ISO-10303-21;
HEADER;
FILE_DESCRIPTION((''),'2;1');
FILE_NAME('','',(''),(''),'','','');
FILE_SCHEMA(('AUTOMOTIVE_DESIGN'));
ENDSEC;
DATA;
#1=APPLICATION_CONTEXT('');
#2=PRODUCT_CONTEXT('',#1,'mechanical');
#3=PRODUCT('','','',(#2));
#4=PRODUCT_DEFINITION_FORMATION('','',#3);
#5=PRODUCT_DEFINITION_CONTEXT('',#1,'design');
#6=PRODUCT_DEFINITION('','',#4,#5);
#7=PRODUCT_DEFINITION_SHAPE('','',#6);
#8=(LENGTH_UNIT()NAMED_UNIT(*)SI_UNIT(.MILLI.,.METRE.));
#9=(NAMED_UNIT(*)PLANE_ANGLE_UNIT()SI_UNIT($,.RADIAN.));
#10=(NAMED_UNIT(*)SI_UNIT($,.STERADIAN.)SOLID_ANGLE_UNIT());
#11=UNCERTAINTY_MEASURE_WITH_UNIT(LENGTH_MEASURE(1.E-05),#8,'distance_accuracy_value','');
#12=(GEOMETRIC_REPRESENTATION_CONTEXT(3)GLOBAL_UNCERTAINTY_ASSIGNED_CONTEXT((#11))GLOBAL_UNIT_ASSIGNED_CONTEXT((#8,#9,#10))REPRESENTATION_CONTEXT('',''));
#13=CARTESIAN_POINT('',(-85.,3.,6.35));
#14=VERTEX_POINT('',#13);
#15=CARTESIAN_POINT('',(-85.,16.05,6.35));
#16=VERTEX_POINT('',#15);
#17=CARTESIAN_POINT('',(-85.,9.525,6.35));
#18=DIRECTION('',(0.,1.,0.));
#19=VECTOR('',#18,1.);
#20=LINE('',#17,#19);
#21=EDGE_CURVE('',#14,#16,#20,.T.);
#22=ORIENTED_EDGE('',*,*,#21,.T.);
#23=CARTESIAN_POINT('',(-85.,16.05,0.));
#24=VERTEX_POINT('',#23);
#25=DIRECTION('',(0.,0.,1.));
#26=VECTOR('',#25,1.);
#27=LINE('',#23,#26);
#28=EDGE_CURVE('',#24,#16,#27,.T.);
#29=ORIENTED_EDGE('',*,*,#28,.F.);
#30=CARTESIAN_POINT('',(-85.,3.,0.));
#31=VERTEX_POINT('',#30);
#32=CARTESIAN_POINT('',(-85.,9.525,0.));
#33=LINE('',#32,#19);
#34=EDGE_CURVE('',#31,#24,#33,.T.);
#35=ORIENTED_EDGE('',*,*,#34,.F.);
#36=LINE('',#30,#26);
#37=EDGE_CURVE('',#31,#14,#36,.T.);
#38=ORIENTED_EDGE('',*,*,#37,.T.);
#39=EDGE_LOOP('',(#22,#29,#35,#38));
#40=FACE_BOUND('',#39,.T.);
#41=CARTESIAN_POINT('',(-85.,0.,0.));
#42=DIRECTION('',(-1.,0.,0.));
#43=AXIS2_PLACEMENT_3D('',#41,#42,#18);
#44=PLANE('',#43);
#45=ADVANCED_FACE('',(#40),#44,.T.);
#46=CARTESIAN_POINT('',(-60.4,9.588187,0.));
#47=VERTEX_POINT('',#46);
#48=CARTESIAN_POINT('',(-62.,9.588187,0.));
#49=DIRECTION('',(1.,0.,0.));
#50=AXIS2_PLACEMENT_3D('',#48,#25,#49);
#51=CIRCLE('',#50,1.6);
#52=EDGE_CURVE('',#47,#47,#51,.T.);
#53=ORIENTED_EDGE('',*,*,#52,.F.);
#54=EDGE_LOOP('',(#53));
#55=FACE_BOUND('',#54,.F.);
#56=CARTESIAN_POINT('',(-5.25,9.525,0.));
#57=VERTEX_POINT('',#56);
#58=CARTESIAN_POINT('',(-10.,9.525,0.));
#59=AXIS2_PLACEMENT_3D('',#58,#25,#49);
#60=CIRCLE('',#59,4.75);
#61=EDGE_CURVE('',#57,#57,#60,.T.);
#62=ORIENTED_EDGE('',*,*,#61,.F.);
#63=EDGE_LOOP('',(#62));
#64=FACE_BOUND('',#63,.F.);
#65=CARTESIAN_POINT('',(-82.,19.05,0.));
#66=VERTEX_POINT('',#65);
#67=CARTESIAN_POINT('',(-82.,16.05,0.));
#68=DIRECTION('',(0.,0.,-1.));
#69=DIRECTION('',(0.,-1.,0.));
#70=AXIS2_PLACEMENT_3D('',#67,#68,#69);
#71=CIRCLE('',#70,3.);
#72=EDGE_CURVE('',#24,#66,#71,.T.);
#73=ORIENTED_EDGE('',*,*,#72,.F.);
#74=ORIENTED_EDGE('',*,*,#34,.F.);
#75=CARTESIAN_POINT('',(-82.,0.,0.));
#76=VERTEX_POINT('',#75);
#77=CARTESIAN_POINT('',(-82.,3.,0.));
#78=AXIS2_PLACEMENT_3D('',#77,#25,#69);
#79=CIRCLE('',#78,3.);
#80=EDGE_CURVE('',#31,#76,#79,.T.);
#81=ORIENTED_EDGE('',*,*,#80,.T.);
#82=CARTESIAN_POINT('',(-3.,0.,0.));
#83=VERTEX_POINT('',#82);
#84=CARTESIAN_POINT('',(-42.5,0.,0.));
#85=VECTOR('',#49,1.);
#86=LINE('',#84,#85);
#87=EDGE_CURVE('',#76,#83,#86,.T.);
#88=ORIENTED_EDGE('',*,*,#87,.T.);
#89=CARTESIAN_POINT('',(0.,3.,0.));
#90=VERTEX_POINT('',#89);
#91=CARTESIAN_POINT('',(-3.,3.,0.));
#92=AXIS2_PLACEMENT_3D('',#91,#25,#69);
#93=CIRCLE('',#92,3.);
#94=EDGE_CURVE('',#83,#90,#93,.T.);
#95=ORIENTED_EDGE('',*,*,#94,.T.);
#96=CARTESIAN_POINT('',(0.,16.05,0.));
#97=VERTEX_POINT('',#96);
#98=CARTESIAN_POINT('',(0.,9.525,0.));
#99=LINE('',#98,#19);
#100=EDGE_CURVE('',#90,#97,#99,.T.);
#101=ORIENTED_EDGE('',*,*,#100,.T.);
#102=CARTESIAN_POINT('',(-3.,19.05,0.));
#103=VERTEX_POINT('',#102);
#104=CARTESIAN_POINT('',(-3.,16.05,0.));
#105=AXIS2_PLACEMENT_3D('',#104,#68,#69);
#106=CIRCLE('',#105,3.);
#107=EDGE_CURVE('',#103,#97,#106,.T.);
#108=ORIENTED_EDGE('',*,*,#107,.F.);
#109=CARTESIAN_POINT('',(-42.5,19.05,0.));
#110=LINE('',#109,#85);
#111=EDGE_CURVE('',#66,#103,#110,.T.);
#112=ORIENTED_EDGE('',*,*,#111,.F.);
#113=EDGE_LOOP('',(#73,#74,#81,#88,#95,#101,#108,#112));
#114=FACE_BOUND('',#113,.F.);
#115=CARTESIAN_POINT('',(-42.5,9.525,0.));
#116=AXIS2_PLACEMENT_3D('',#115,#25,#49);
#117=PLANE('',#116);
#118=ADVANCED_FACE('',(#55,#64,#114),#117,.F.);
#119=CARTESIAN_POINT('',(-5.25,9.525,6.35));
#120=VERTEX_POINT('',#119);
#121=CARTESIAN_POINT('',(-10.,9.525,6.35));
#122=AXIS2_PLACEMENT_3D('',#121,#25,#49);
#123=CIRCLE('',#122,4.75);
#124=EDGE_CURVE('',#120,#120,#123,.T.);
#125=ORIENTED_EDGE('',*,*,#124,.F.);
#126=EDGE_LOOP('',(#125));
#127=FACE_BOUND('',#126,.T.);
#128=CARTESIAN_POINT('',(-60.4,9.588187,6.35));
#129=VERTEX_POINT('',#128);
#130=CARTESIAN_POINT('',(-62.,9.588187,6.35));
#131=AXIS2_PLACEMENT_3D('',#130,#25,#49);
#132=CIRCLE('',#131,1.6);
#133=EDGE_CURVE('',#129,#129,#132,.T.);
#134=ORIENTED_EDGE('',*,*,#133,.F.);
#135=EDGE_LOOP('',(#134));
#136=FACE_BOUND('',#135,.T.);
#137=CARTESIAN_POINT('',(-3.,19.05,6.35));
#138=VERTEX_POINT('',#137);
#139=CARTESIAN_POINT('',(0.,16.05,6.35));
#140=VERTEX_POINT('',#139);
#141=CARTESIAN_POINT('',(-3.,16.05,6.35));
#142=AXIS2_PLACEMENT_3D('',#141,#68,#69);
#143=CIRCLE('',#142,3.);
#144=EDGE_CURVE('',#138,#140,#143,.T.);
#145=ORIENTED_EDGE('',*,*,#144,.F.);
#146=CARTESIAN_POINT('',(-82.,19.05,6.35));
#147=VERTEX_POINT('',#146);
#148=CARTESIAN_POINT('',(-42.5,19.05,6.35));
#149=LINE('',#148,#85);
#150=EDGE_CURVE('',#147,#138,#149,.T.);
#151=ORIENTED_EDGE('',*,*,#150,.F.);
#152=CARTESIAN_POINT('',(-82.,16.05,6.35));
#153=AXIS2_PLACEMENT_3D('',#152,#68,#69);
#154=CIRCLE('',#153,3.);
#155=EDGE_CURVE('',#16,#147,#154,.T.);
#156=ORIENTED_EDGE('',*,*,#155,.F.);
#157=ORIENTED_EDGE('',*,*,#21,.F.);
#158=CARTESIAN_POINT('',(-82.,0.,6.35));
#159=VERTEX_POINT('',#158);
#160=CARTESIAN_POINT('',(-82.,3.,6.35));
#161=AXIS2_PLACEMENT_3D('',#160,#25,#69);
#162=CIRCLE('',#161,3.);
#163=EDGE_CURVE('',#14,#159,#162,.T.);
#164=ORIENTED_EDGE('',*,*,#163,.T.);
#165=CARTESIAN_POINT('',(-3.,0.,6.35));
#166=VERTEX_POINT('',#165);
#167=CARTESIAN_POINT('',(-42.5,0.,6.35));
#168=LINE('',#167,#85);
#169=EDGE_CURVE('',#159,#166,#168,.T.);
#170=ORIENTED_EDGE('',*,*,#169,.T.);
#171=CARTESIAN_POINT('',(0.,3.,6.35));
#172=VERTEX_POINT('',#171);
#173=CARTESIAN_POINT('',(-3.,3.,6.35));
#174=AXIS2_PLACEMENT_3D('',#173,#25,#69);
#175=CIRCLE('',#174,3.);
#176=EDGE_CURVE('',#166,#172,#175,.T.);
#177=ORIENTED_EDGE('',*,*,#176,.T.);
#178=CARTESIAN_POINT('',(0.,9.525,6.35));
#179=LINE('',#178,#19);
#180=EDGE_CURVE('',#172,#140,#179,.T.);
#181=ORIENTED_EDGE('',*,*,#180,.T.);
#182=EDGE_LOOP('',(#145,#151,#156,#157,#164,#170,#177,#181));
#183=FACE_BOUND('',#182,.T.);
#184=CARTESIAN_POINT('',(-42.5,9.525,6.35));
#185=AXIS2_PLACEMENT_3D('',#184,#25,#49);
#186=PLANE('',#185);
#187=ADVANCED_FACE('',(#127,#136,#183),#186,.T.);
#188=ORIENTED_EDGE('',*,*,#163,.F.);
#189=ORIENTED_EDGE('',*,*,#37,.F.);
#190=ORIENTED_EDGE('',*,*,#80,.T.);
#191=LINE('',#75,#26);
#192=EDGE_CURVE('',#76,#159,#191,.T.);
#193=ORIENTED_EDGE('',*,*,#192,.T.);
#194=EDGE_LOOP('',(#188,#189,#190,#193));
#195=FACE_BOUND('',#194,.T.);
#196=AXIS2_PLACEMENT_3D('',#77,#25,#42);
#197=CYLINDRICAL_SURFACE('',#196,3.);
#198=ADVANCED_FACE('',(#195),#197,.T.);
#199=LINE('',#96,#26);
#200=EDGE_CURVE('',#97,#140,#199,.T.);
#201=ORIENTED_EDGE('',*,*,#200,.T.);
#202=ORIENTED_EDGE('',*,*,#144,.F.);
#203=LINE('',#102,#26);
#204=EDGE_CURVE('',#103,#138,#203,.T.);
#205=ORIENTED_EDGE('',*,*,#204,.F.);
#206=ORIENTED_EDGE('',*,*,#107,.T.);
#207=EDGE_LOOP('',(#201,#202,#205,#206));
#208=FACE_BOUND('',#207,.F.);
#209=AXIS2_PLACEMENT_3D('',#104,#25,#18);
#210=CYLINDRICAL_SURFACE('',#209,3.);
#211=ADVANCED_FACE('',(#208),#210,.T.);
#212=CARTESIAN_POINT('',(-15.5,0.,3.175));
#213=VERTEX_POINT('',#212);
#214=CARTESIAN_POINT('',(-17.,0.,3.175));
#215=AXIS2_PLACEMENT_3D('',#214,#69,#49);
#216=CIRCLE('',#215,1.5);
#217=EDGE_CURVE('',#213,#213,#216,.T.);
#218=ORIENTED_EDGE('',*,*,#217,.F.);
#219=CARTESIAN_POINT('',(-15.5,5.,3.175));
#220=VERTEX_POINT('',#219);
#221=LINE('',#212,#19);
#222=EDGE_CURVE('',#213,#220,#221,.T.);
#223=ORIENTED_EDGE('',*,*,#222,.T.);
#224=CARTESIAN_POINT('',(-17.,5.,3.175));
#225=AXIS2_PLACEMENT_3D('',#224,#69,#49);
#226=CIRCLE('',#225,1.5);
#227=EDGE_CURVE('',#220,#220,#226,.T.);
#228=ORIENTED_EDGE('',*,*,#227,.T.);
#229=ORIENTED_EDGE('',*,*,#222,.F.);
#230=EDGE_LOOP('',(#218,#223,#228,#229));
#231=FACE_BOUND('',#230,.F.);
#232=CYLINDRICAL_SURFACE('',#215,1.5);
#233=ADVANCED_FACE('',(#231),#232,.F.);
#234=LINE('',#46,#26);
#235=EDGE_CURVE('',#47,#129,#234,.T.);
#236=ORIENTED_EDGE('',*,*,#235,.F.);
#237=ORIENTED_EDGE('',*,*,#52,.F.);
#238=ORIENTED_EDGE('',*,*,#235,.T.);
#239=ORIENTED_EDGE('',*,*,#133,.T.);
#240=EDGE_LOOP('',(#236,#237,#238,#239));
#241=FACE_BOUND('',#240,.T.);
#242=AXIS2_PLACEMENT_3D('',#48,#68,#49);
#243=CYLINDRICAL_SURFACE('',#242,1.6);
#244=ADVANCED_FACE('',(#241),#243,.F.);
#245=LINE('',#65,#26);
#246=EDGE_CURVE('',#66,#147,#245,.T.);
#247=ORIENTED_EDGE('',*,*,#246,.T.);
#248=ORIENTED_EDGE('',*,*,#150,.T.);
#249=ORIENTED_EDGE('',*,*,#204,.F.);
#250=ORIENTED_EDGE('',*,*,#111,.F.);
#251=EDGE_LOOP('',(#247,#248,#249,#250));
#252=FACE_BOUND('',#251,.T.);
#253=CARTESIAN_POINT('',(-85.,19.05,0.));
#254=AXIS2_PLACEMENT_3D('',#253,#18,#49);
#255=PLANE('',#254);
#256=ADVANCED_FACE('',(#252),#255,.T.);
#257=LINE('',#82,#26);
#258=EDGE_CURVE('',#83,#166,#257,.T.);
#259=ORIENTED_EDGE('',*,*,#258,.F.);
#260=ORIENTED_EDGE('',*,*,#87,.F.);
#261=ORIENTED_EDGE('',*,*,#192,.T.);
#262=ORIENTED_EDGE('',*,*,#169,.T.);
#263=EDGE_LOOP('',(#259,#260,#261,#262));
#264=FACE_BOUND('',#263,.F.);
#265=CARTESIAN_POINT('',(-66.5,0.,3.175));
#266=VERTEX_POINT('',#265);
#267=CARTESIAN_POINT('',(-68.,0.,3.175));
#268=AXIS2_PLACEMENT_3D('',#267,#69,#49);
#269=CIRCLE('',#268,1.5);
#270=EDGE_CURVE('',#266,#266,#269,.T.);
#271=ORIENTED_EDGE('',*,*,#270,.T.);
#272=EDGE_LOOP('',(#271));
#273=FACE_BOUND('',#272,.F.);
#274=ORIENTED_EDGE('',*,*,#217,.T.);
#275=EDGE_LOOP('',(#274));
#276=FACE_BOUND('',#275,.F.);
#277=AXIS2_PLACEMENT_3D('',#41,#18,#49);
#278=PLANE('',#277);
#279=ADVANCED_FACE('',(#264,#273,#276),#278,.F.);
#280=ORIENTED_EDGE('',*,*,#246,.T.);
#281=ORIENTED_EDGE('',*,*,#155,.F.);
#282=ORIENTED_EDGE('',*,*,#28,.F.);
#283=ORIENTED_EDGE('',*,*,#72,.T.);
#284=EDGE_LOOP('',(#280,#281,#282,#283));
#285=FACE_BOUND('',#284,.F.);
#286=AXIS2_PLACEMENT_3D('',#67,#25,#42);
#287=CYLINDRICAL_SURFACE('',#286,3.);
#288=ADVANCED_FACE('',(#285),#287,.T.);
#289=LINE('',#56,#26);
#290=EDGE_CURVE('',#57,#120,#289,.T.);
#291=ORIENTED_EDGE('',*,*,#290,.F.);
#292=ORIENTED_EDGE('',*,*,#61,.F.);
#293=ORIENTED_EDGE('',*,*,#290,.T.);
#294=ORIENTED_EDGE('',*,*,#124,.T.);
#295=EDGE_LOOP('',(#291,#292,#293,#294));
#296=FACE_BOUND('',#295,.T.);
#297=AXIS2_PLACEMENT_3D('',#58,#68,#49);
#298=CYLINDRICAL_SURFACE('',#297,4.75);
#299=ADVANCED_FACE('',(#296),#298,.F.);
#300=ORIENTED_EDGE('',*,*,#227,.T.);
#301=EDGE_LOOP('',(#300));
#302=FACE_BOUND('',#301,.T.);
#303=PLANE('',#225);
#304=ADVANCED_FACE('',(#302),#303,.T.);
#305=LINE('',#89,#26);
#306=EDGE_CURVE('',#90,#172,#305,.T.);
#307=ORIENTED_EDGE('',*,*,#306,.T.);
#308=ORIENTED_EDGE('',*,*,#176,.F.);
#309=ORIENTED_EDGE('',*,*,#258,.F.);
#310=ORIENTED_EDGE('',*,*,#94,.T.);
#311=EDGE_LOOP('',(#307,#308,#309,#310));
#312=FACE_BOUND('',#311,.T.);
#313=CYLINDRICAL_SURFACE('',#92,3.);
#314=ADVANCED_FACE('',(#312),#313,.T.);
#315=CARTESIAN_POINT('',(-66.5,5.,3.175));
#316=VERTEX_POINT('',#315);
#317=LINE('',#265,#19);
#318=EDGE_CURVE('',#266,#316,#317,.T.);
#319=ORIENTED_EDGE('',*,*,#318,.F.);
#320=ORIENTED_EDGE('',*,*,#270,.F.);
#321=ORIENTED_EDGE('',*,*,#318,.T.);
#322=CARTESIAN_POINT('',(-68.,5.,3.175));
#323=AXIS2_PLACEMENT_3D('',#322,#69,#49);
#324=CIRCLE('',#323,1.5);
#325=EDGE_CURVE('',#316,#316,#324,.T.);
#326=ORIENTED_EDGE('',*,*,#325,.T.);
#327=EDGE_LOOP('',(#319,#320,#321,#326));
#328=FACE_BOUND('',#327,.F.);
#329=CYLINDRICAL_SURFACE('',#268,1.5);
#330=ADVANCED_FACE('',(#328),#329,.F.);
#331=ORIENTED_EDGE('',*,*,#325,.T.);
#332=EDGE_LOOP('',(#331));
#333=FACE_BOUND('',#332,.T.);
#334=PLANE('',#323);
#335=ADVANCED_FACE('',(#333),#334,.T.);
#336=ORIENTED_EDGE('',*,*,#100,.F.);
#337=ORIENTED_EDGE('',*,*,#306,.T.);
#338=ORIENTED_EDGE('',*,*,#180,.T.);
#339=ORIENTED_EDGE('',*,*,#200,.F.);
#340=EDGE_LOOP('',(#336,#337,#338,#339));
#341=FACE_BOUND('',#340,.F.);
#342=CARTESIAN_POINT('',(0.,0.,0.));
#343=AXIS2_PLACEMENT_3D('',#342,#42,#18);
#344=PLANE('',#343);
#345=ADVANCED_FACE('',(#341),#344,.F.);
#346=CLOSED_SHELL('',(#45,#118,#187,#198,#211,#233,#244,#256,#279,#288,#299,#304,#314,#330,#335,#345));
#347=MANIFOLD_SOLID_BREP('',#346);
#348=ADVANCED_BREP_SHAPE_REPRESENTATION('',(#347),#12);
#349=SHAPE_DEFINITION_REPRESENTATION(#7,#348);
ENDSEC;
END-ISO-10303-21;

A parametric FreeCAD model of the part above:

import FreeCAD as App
import Part
import Sketcher

V = App.Vector
Q = App.Units.Quantity


def edges_at(feature, points):
    """Names of the edges that pass closest to the given points."""
    edges = feature.Shape.Edges
    near = lambda p: min(range(len(edges)), key=lambda i: edges[i].distToShape(Part.Vertex(*p))[0])
    return sorted({f"Edge{near(p) + 1}" for p in points})

doc = App.newDocument("Part")
body = doc.addObject("PartDesign::Body", "Body")

sketch1 = body.newObject("Sketcher::SketchObject", "Sketch")
sketch1.AttachmentSupport = (doc.getObject("XY_Plane"), [""])
sketch1.MapMode = "FlatFace"
sketch1.addGeometry(Part.LineSegment(V(-85, 19.1, 0), V(-85, 0, 0)), False)
sketch1.addGeometry(Part.LineSegment(V(-85, 0, 0), V(0, 0, 0)), False)
sketch1.addGeometry(Part.LineSegment(V(0, 0, 0), V(0, 19.1, 0)), False)
sketch1.addGeometry(Part.LineSegment(V(0, 19.1, 0), V(-85, 19.1, 0)), False)
sketch1.addGeometry(Part.Circle(V(-62, 9.6, 0), V(0, 0, 1), 1.6), False)
sketch1.addGeometry(Part.Circle(V(-10, 9.5, 0), V(0, 0, 1), 4.8), False)
sketch1.addConstraint(Sketcher.Constraint("Coincident", 0, 2, 1, 1))
sketch1.addConstraint(Sketcher.Constraint("Coincident", 1, 2, 2, 1))
sketch1.addConstraint(Sketcher.Constraint("Coincident", 2, 2, 3, 1))
sketch1.addConstraint(Sketcher.Constraint("Coincident", 3, 2, 0, 1))
sketch1.addConstraint(Sketcher.Constraint("Vertical", 0))
sketch1.addConstraint(Sketcher.Constraint("Horizontal", 1))
sketch1.addConstraint(Sketcher.Constraint("Vertical", 2))
sketch1.addConstraint(Sketcher.Constraint("Horizontal", 3))
sketch1.addConstraint(Sketcher.Constraint("Coincident", 1, 2, -1, 1))
sketch1.addConstraint(Sketcher.Constraint("Diameter", 4, Q("3.2 mm")))
sketch1.addConstraint(Sketcher.Constraint("Diameter", 5, Q("9.5 mm")))
sketch1.addConstraint(Sketcher.Constraint("DistanceX", 1, 1, 1, 2, Q("85 mm")))
sketch1.addConstraint(Sketcher.Constraint("DistanceX", 4, 3, -1, 1, Q("62 mm")))
sketch1.addConstraint(Sketcher.Constraint("DistanceX", 5, 3, -1, 1, Q("10 mm")))
sketch1.addConstraint(Sketcher.Constraint("DistanceY", 0, 2, 0, 1, Q("19.05 mm")))
sketch1.addConstraint(Sketcher.Constraint("DistanceY", -1, 1, 5, 3, Q("9.525 mm")))
sketch1.addConstraint(Sketcher.Constraint("DistanceY", -1, 1, 4, 3, Q("9.588187 mm")))
pad1 = body.newObject("PartDesign::Pad", "Pad")
pad1.Profile = sketch1
pad1.Length = 6.35

sketch2 = body.newObject("Sketcher::SketchObject", "Sketch001")
sketch2.AttachmentSupport = (doc.getObject("XZ_Plane"), [""])
sketch2.MapMode = "FlatFace"
sketch2.addGeometry(Part.Circle(V(-68, 3.2, 0), V(0, 0, 1), 1.5), False)
sketch2.addGeometry(Part.Circle(V(-17, 3.2, 0), V(0, 0, 1), 1.5), False)
sketch2.addConstraint(Sketcher.Constraint("Equal", 0, 1))
sketch2.addConstraint(Sketcher.Constraint("Horizontal", 0, 3, 1, 3))
sketch2.addConstraint(Sketcher.Constraint("Diameter", 0, Q("3 mm")))
sketch2.addConstraint(Sketcher.Constraint("DistanceX", 0, 3, -1, 1, Q("68 mm")))
sketch2.addConstraint(Sketcher.Constraint("DistanceX", 1, 3, -1, 1, Q("17 mm")))
sketch2.addConstraint(Sketcher.Constraint("DistanceY", -1, 1, 0, 3, Q("3.175 mm")))
pocket1 = body.newObject("PartDesign::Pocket", "Pocket")
pocket1.Profile = sketch2
pocket1.Length = 5
doc.recompute()

fillet = body.newObject("PartDesign::Fillet", "Fillet")
fillet.Base = (pocket1, edges_at(pocket1, [
    (0, 19.05, 3.175),
    (-85, 19.05, 3.175),
    (-85, 0, 3.175),
    (0, 0, 3.175),
]))
fillet.Radius = 3

doc.recompute()
